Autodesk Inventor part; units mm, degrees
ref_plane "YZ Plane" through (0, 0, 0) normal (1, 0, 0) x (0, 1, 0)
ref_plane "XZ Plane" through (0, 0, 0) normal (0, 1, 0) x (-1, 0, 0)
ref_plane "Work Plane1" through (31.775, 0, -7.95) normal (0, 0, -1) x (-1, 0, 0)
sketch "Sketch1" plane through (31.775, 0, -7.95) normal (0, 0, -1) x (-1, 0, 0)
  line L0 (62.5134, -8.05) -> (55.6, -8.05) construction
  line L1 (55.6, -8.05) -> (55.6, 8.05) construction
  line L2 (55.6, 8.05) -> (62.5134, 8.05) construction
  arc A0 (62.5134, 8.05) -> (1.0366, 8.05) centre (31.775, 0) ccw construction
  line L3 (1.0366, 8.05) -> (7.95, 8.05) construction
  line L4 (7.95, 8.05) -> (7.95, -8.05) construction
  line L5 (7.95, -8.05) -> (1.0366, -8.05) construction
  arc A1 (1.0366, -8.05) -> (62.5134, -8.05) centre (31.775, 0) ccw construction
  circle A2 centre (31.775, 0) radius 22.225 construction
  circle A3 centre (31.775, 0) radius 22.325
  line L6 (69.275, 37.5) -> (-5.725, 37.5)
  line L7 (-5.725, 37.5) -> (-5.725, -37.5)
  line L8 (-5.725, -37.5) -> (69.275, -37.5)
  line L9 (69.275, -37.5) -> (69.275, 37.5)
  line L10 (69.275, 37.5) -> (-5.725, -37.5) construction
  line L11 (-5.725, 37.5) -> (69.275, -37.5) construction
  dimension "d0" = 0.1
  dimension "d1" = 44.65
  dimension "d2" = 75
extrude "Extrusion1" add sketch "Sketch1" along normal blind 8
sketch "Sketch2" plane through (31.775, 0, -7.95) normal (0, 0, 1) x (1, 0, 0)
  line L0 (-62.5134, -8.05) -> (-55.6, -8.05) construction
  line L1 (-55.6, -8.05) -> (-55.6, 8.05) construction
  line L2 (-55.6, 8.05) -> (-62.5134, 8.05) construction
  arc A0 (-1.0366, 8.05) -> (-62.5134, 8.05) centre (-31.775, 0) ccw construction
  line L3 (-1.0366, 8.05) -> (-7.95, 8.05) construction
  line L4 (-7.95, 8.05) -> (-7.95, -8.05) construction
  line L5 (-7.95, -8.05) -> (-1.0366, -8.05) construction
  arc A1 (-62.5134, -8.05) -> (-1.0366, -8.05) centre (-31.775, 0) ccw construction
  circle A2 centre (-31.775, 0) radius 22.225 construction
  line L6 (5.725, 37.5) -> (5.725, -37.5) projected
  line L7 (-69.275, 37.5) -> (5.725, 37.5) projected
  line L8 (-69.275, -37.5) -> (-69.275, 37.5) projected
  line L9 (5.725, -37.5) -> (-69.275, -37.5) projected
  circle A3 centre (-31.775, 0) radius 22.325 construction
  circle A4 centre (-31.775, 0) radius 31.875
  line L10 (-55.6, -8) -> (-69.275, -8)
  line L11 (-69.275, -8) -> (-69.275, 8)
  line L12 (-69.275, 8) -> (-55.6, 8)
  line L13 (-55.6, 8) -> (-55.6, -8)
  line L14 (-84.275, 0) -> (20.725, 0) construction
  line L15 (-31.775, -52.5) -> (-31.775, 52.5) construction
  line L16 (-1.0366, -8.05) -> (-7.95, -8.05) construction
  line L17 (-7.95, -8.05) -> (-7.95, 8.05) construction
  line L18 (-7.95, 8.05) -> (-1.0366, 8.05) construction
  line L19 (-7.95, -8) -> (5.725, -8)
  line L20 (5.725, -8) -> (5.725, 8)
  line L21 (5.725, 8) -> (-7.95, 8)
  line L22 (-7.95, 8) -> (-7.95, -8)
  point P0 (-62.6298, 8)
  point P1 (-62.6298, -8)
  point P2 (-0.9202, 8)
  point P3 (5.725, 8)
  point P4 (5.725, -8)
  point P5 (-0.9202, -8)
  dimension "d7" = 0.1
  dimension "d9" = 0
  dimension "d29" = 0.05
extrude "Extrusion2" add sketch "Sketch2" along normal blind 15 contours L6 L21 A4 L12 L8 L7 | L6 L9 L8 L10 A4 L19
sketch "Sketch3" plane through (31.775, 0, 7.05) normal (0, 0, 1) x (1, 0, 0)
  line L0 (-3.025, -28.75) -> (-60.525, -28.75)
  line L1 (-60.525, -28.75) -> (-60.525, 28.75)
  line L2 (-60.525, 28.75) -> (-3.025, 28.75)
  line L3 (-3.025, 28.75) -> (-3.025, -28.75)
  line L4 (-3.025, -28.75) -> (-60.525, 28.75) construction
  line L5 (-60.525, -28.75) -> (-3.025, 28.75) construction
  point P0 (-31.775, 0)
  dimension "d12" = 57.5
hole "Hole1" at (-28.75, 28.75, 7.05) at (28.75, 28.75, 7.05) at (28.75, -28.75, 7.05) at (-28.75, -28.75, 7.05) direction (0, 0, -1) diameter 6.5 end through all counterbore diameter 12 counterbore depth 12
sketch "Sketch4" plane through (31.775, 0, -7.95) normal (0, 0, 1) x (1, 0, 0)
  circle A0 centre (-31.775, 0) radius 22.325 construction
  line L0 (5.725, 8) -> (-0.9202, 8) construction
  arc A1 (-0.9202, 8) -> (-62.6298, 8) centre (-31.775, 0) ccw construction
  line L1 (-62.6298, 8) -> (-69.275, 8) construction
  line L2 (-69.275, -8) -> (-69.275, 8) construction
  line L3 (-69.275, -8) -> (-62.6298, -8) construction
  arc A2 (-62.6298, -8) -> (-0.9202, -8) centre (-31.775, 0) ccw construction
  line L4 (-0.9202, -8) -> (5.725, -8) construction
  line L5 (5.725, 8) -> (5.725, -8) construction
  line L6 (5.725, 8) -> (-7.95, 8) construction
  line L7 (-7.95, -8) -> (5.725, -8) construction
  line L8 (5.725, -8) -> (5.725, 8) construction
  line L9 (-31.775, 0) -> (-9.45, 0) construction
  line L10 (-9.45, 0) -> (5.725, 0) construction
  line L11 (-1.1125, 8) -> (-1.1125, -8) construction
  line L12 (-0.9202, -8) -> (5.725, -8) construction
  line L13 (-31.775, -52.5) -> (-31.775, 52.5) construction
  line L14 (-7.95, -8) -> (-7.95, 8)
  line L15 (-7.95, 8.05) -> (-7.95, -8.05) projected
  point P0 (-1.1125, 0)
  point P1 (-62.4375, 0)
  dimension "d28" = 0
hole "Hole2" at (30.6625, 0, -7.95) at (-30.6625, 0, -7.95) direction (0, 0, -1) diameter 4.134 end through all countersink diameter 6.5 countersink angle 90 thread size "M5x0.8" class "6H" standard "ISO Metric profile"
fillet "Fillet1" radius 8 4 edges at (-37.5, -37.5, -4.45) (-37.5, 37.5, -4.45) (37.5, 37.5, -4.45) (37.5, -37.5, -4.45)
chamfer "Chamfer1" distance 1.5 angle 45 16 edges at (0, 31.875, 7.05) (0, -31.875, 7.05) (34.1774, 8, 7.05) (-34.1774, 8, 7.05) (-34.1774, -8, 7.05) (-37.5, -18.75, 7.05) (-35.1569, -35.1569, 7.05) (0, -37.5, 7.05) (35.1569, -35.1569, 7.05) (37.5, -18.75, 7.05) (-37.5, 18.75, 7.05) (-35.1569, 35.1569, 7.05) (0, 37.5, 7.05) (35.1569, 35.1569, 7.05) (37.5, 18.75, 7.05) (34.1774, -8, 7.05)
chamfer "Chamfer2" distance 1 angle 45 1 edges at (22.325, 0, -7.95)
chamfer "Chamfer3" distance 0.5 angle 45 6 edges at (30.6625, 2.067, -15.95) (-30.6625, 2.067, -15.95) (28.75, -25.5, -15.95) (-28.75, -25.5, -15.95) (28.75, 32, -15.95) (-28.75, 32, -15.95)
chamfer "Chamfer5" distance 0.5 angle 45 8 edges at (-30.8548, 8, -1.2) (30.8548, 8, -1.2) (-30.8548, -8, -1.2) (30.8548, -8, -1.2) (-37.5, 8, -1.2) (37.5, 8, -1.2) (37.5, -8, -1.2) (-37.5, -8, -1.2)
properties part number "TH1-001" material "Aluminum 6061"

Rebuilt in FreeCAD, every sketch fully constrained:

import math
import FreeCAD as App
import Part
import Sketcher
from FreeCAD import Vector
Q = App.Units.Quantity


def edges_at(feature, points):
    """Names of the edges that pass closest to the given points."""
    edges = feature.Shape.Edges
    near = lambda p: min(range(len(edges)), key=lambda i: edges[i].distToShape(Part.Vertex(*p))[0])
    return sorted({f"Edge{near(p) + 1}" for p in points})


def add_polygon(sketch, points):
    """Adds a closed chain of lines whose ends are joined by coincident constraints."""
    first, n = sketch.GeometryCount, len(points)
    for a, b in zip(points, points[1:] + points[:1]):
        sketch.addGeometry(Part.LineSegment(App.Vector(*a, 0), App.Vector(*b, 0)), False)
    for i in range(n):
        sketch.addConstraint(Sketcher.Constraint("Coincident", first + i, 2, first + (i + 1) % n, 1))

doc = App.newDocument("Part")
body = doc.addObject("PartDesign::Body", "Body")

# Sketch on XY plane
sketch1 = body.newObject("Sketcher::SketchObject", "Sketch")
sketch1.AttachmentSupport = (doc.getObject("XY_Plane"), [""])
sketch1.MapMode = "FlatFace"
sketch1.AttachmentOffset = App.Placement(Vector(0, 0, -7.95), App.Rotation())
add_polygon(sketch1, [(-38, -38), (-38, 38), (38, 38), (38, -38)])  # lines 0-3
sketch1.addGeometry(Part.Circle(Vector(0, 0, 0), Vector(0, 0, 1), 22), False)  # 4
sketch1.addConstraint([
    Sketcher.Constraint("Vertical", 0),
    Sketcher.Constraint("Horizontal", 1),
    Sketcher.Constraint("Vertical", 2),
    Sketcher.Constraint("Horizontal", 3),
    Sketcher.Constraint("Coincident", 4, 3, -1, 1),
    Sketcher.Constraint("Symmetric", 0, 2, 2, 2, -1, 1),
    Sketcher.Constraint("Equal", 3, 0),
    Sketcher.Constraint("Diameter", 4, Q("44.65 mm")),
    Sketcher.Constraint("DistanceX", 1, 1, 1, 2, Q("75 mm")),
])
pad1 = body.newObject("PartDesign::Pad", "Pad")
pad1.Profile = sketch1
pad1.Length = 8
pad1.Reversed = True

# Sketch on XY plane
sketch2 = body.newObject("Sketcher::SketchObject", "Sketch001")
sketch2.AttachmentSupport = (doc.getObject("XY_Plane"), [""])
sketch2.MapMode = "FlatFace"
sketch2.AttachmentOffset = App.Placement(Vector(0, 0, -7.95), App.Rotation())
sketch2.addGeometry([
    Part.LineSegment(Vector(38, 8, 0), Vector(38, 38, 0)),  # 0
    Part.LineSegment(Vector(38, 38, 0), Vector(-38, 38, 0)),  # 1
    Part.LineSegment(Vector(-38, 38, 0), Vector(-38, 8, 0)),  # 2
    Part.LineSegment(Vector(-38, 8, 0), Vector(-31, 8, 0)),  # 3
    Part.ArcOfCircle(Part.Circle(Vector(0, 0, 0), Vector(0, 0, 1), 32), math.radians(15), math.radians(165)),  # 4
    Part.LineSegment(Vector(31, 8, 0), Vector(38, 8, 0)),  # 5
    Part.LineSegment(Vector(38, -38, 0), Vector(38, -8, 0)),  # 6
    Part.LineSegment(Vector(38, -8, 0), Vector(31, -8, 0)),  # 7
    Part.ArcOfCircle(Part.Circle(Vector(0, 0, 0), Vector(0, 0, 1), 32), math.radians(-165), math.radians(-15)),  # 8
    Part.LineSegment(Vector(-31, -8, 0), Vector(-38, -8, 0)),  # 9
    Part.LineSegment(Vector(-38, -8, 0), Vector(-38, -38, 0)),  # 10
    Part.LineSegment(Vector(-38, -38, 0), Vector(38, -38, 0)),  # 11
], False)
sketch2.addConstraint([
    Sketcher.Constraint("Coincident", 0, 2, 1, 1),
    Sketcher.Constraint("Coincident", 1, 2, 2, 1),
    Sketcher.Constraint("Coincident", 2, 2, 3, 1),
    Sketcher.Constraint("Coincident", 3, 2, 4, 2),
    Sketcher.Constraint("Coincident", 4, 1, 5, 1),
    Sketcher.Constraint("Coincident", 5, 2, 0, 1),
    Sketcher.Constraint("Coincident", 6, 2, 7, 1),
    Sketcher.Constraint("Coincident", 7, 2, 8, 2),
    Sketcher.Constraint("Coincident", 8, 1, 9, 1),
    Sketcher.Constraint("Coincident", 9, 2, 10, 1),
    Sketcher.Constraint("Coincident", 10, 2, 11, 1),
    Sketcher.Constraint("Coincident", 11, 2, 6, 1),
    Sketcher.Constraint("Vertical", 0),
    Sketcher.Constraint("Horizontal", 1),
    Sketcher.Constraint("Vertical", 2),
    Sketcher.Constraint("Horizontal", 3),
    Sketcher.Constraint("Horizontal", 5),
    Sketcher.Constraint("Vertical", 6),
    Sketcher.Constraint("Horizontal", 7),
    Sketcher.Constraint("Horizontal", 9),
    Sketcher.Constraint("Vertical", 10),
    Sketcher.Constraint("Horizontal", 11),
    Sketcher.Constraint("Coincident", 4, 3, -1, 1),
    Sketcher.Constraint("Coincident", 8, 3, -1, 1),
    Sketcher.Constraint("Equal", 4, 8),
    Sketcher.Constraint("Symmetric", 2, 2, 6, 2, -1, 1),
    Sketcher.Constraint("Symmetric", 5, 2, 9, 2, -1, 1),
    Sketcher.Constraint("Symmetric", 2, 2, 5, 2, -2),
    Sketcher.Constraint("Equal", 2, 6),
    Sketcher.Constraint("DistanceX", 1, 2, 1, 1, Q("75 mm")),
    Sketcher.Constraint("DistanceY", 0, 1, 0, 2, Q("29.5 mm")),
    Sketcher.Constraint("DistanceY", -1, 1, 2, 2, Q("8 mm")),
    Sketcher.Constraint("Radius", 4, Q("31.875 mm")),
])
pad2 = body.newObject("PartDesign::Pad", "Pad001")
pad2.Profile = sketch2
pad2.Length = 15

# Sketch on XY plane
sketch3 = body.newObject("Sketcher::SketchObject", "Sketch002")
sketch3.AttachmentSupport = (doc.getObject("XY_Plane"), [""])
sketch3.MapMode = "FlatFace"
sketch3.AttachmentOffset = App.Placement(Vector(0, 0, 7.05), App.Rotation())
sketch3.addGeometry([
    Part.Circle(Vector(-28.8, 28.8, 0), Vector(0, 0, 1), 3.2),
    Part.Circle(Vector(28.8, 28.8, 0), Vector(0, 0, 1), 3.2),
    Part.Circle(Vector(28.8, -28.8, 0), Vector(0, 0, 1), 3.2),
    Part.Circle(Vector(-28.8, -28.8, 0), Vector(0, 0, 1), 3.2),
], False)
sketch3.addConstraint([
    Sketcher.Constraint("Equal", 0, 1),
    Sketcher.Constraint("Equal", 1, 2),
    Sketcher.Constraint("Equal", 2, 3),
    Sketcher.Constraint("Symmetric", 0, 3, 2, 3, -1, 1),
    Sketcher.Constraint("Symmetric", 1, 3, 3, 3, -1, 1),
    Sketcher.Constraint("Symmetric", 0, 3, 1, 3, -2),
    Sketcher.Constraint("Diameter", 0, Q("6.5 mm")),
    Sketcher.Constraint("DistanceX", 0, 3, 1, 3, Q("57.5 mm")),
    Sketcher.Constraint("DistanceY", 2, 3, 1, 3, Q("57.5 mm")),
])
doc.recompute()
hole = body.newObject("PartDesign::Hole", "Hole")
hole.Profile = sketch3
hole.ThreadType = "None"
hole.Diameter = 6.5
hole.DepthType = "ThroughAll"
hole.HoleCutType = "Counterbore"
hole.HoleCutDiameter = 12
hole.HoleCutDepth = 12

# Sketch on XY plane
sketch4 = body.newObject("Sketcher::SketchObject", "Sketch003")
sketch4.AttachmentSupport = (doc.getObject("XY_Plane"), [""])
sketch4.MapMode = "FlatFace"
sketch4.AttachmentOffset = App.Placement(Vector(0, 0, -7.95), App.Rotation())
sketch4.addGeometry([
    Part.Circle(Vector(30.7, 0, 0), Vector(0, 0, 1), 2.1),
    Part.Circle(Vector(-30.7, 0, 0), Vector(0, 0, 1), 2.1),
], False)
sketch4.addConstraint([
    Sketcher.Constraint("Equal", 0, 1),
    Sketcher.Constraint("Symmetric", 0, 3, 1, 3, -1, 1),
    Sketcher.Constraint("PointOnObject", 0, 3, -1),
    Sketcher.Constraint("Diameter", 0, Q("4.134 mm")),
    Sketcher.Constraint("DistanceX", 1, 3, 0, 3, Q("61.325 mm")),
])
doc.recompute()
hole2 = body.newObject("PartDesign::Hole", "Hole001")
hole2.Profile = sketch4
hole2.ThreadType = "None"
hole2.Diameter = 4.134
hole2.DepthType = "ThroughAll"
hole2.HoleCutType = "Countersink"
hole2.HoleCutDiameter = 6.5
hole2.HoleCutCountersinkAngle = 90
doc.recompute()

fillet = body.newObject("PartDesign::Fillet", "Fillet")
fillet.Base = (hole2, edges_at(hole2, [
    (-37.5, -37.5, -4.45),
    (-37.5, 37.5, -4.45),
    (37.5, 37.5, -4.45),
    (37.5, -37.5, -4.45),
]))
fillet.Radius = 8
doc.recompute()

chamfer = body.newObject("PartDesign::Chamfer", "Chamfer")
chamfer.Base = (fillet, edges_at(fillet, [
    (0, 31.875, 7.05),
    (0, -31.875, 7.05),
    (34.177, 8, 7.05),
    (-34.177, 8, 7.05),
    (-34.177, -8, 7.05),
    (-37.5, -18.75, 7.05),
    (-35.157, -35.157, 7.05),
    (0, -37.5, 7.05),
    (35.157, -35.157, 7.05),
    (37.5, -18.75, 7.05),
    (-37.5, 18.75, 7.05),
    (-35.157, 35.157, 7.05),
    (0, 37.5, 7.05),
    (35.157, 35.157, 7.05),
    (37.5, 18.75, 7.05),
    (34.177, -8, 7.05),
]))
chamfer.Size = 1.5
doc.recompute()

chamfer2 = body.newObject("PartDesign::Chamfer", "Chamfer001")
chamfer2.Base = (chamfer, edges_at(chamfer, [(22.325, 0, -7.95)]))
chamfer2.Size = 1
doc.recompute()

chamfer3 = body.newObject("PartDesign::Chamfer", "Chamfer002")
chamfer3.Base = (chamfer2, edges_at(chamfer2, [
    (30.663, 2.067, -15.95),
    (-30.663, 2.067, -15.95),
    (28.75, -25.5, -15.95),
    (-28.75, -25.5, -15.95),
    (28.75, 32, -15.95),
    (-28.75, 32, -15.95),
]))
chamfer3.Size = 0.5
doc.recompute()

chamfer4 = body.newObject("PartDesign::Chamfer", "Chamfer003")
chamfer4.Base = (chamfer3, edges_at(chamfer3, [
    (-30.855, 8, -1.2),
    (30.855, 8, -1.2),
    (-30.855, -8, -1.2),
    (30.855, -8, -1.2),
    (-37.5, 8, -1.2),
    (37.5, 8, -1.2),
    (37.5, -8, -1.2),
    (-37.5, -8, -1.2),
]))
chamfer4.Size = 0.5

doc.recompute()
